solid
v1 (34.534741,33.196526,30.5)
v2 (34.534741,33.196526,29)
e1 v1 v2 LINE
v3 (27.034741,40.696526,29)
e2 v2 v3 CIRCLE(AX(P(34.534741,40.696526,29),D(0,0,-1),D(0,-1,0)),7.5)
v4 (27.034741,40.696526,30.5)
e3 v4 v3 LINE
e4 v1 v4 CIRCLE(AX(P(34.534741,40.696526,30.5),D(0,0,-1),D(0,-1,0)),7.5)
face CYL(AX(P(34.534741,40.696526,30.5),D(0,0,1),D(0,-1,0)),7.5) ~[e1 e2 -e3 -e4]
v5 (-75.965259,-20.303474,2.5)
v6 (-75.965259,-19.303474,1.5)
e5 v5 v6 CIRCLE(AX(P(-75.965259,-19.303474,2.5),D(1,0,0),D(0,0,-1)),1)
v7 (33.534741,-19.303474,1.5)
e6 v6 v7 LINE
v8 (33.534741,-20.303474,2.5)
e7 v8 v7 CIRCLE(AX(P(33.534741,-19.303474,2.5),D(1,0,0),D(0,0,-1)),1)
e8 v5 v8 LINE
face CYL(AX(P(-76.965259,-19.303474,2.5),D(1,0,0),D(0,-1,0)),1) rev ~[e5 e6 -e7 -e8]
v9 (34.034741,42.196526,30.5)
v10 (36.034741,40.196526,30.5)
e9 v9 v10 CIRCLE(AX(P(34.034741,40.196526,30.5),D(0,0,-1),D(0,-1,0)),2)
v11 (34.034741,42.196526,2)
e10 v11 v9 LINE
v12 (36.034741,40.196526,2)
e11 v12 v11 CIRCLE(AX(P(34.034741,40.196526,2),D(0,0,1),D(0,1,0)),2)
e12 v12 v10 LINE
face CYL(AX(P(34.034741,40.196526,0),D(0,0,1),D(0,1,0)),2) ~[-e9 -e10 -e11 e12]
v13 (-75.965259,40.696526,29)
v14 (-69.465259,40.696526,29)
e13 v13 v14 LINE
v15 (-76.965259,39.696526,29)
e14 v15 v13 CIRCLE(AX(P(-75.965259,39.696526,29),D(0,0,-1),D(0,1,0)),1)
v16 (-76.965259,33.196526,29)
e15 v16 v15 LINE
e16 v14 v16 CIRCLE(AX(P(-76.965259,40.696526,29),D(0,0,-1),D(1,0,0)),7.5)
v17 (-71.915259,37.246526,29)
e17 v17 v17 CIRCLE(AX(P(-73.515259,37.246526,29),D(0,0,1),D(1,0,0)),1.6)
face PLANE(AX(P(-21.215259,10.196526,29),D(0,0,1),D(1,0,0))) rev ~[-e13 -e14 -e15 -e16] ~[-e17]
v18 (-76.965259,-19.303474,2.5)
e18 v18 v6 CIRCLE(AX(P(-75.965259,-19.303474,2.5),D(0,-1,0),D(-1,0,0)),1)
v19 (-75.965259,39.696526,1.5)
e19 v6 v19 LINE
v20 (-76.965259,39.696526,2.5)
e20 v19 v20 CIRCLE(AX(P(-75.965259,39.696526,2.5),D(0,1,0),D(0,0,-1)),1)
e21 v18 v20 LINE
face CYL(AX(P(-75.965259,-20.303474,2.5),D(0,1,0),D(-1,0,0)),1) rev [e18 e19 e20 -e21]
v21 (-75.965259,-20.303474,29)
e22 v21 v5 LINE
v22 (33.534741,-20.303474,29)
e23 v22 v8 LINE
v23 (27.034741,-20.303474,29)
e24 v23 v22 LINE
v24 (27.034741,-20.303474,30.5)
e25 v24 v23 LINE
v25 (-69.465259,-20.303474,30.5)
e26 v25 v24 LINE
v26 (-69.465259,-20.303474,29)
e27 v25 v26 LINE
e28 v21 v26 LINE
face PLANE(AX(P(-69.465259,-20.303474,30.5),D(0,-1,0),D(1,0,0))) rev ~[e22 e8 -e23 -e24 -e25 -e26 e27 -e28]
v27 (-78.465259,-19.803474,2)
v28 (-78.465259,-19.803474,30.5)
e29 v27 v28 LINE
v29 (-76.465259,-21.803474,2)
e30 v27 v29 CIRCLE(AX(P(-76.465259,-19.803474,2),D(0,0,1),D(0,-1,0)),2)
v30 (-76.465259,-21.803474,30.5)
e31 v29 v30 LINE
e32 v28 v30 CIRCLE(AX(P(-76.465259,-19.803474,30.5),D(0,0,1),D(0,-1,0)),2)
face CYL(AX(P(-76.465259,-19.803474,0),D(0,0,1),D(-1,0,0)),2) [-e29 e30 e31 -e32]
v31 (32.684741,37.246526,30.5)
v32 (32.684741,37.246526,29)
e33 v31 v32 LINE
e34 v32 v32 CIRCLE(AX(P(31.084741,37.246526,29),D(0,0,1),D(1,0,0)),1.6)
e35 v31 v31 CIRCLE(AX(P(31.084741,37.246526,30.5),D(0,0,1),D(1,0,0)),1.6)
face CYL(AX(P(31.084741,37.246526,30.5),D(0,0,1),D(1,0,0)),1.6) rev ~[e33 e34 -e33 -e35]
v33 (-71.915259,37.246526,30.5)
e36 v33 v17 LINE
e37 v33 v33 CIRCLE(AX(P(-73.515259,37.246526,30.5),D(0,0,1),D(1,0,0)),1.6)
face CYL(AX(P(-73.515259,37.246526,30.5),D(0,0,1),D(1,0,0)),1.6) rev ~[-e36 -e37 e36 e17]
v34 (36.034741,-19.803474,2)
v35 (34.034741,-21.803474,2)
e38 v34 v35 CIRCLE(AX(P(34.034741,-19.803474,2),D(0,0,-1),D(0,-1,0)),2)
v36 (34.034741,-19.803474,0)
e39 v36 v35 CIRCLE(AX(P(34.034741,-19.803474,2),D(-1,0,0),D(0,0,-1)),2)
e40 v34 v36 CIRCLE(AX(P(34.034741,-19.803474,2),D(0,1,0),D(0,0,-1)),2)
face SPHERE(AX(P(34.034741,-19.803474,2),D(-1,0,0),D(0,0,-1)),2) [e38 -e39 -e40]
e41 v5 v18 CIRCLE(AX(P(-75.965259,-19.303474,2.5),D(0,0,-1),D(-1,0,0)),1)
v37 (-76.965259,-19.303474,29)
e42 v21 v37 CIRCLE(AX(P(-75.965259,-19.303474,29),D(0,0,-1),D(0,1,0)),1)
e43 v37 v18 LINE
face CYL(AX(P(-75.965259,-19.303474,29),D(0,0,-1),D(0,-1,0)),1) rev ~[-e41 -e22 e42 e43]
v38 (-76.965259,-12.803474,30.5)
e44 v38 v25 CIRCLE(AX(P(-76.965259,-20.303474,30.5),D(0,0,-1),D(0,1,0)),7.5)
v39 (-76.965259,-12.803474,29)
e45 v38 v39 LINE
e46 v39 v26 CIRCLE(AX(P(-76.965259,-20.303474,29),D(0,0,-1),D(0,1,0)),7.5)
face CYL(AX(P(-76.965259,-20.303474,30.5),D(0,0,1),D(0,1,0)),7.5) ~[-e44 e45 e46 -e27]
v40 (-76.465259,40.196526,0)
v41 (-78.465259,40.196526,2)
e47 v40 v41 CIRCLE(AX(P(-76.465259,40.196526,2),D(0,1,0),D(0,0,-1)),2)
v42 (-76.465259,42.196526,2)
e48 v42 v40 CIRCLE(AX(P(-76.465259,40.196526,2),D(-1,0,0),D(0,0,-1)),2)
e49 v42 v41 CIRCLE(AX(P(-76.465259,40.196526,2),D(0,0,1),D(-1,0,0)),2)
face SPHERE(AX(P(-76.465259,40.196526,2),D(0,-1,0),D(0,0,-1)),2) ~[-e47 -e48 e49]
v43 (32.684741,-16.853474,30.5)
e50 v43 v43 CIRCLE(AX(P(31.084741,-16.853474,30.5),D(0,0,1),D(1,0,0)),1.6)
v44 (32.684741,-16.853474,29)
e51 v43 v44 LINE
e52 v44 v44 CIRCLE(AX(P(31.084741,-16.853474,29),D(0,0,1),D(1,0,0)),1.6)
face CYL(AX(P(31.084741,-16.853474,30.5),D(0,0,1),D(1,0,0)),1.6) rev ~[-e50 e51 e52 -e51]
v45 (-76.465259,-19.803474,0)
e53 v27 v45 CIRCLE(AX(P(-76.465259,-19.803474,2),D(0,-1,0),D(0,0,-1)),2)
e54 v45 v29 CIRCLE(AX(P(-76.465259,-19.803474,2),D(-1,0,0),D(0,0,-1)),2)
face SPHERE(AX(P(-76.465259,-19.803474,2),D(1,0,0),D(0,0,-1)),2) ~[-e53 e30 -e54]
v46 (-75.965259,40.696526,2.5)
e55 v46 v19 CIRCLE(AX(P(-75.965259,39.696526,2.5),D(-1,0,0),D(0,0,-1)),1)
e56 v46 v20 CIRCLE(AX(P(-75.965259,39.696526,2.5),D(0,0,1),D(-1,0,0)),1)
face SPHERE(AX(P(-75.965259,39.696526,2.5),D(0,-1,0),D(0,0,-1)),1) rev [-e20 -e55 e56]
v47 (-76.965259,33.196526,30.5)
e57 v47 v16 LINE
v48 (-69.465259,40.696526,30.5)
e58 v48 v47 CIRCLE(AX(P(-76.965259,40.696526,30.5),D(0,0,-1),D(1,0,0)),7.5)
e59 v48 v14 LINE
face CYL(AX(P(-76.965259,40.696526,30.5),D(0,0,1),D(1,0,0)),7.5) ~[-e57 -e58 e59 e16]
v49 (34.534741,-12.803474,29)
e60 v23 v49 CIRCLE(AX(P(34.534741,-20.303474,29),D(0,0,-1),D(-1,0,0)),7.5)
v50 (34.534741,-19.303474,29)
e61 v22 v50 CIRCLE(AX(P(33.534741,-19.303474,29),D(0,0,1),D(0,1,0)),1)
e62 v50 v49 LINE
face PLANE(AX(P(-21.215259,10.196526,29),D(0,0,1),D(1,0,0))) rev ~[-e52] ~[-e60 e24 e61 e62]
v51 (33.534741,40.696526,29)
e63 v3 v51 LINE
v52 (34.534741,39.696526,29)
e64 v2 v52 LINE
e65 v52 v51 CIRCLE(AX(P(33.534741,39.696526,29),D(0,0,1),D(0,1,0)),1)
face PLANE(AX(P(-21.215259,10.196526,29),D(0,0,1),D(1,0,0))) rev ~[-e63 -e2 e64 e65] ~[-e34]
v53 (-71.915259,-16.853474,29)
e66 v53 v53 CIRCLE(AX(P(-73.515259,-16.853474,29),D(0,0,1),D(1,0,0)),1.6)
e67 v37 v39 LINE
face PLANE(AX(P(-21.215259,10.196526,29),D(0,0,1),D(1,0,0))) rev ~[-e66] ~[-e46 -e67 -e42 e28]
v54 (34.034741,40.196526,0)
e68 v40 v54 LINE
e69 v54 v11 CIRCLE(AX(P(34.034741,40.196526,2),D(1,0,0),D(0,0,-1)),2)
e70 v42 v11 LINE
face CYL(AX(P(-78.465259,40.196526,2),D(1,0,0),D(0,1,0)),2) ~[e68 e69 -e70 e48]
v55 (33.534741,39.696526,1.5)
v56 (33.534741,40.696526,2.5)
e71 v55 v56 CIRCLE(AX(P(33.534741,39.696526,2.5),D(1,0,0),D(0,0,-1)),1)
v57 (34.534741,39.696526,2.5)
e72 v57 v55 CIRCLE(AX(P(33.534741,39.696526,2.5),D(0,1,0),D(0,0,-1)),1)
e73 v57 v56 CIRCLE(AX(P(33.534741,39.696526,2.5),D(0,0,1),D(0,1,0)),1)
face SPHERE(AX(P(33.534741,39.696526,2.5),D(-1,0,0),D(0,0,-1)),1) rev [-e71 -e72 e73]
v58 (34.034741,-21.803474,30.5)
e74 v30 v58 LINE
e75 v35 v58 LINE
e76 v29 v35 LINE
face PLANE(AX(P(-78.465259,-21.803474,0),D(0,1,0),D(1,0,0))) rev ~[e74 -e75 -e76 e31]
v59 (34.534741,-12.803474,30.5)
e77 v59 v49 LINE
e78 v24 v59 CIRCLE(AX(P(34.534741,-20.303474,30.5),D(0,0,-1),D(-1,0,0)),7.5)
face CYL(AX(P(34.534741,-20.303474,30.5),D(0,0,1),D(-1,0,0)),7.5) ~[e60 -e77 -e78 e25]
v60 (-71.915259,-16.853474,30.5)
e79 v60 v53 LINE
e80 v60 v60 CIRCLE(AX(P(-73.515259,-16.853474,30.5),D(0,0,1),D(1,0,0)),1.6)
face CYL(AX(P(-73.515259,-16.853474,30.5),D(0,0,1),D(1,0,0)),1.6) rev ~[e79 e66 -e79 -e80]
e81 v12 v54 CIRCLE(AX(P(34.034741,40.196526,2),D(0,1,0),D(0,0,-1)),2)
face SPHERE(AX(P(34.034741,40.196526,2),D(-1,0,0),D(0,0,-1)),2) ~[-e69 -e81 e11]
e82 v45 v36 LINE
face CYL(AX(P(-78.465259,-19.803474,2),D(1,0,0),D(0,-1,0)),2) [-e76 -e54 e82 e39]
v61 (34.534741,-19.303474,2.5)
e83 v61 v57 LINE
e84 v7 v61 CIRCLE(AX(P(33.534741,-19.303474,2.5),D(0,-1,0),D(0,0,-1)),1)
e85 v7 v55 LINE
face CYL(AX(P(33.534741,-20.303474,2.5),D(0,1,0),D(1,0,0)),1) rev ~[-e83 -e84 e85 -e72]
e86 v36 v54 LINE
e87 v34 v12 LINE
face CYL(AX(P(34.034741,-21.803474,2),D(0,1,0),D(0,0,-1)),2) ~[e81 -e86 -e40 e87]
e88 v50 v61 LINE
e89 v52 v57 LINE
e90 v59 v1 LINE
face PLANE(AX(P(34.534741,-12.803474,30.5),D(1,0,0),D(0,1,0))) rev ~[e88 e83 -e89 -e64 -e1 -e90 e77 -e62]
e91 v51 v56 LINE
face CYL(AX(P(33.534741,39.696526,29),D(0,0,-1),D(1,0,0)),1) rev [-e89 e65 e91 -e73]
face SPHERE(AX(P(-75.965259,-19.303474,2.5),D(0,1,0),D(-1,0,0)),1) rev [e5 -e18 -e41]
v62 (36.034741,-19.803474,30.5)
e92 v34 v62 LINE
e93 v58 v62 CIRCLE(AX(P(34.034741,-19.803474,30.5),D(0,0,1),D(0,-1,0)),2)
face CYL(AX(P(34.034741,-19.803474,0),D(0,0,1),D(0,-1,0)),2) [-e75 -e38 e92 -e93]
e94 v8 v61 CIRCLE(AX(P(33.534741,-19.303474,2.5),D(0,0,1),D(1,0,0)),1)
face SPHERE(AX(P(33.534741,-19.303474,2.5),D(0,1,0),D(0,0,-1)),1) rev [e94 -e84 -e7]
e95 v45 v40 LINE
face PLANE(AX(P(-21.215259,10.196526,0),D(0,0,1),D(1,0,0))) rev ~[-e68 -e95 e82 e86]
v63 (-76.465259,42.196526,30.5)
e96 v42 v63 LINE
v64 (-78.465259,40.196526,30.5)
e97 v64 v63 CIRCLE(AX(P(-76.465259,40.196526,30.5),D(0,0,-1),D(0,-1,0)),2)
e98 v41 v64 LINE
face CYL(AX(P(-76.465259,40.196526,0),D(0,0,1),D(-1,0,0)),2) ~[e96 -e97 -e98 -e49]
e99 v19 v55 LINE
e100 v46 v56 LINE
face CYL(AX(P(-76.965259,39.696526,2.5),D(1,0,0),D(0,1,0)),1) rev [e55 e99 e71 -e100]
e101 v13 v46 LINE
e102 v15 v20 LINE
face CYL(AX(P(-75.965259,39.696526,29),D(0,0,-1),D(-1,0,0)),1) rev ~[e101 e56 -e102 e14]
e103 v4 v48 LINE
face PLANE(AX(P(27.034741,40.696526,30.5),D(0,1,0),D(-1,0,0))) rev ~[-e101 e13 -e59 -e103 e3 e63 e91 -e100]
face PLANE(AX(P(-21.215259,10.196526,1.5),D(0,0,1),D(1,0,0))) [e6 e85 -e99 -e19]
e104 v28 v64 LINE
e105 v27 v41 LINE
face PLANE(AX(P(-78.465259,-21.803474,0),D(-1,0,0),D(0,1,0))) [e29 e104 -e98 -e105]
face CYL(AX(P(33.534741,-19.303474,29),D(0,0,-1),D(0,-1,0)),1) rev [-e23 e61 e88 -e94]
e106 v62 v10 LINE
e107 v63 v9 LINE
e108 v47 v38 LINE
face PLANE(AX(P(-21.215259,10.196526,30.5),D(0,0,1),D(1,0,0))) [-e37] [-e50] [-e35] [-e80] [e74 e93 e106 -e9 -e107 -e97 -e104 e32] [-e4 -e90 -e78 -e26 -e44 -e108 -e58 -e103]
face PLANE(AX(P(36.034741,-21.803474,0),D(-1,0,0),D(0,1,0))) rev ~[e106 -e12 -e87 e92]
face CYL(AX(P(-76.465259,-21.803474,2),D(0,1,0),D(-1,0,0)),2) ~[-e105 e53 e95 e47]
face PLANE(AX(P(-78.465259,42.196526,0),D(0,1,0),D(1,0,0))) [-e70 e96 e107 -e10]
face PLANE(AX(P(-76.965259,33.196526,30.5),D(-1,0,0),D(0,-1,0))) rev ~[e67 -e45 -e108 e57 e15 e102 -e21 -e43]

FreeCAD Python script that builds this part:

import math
import FreeCAD as App
import Part
import Sketcher
from FreeCAD import Vector
Q = App.Units.Quantity


def edges_at(feature, points):
    """Names of the edges that pass closest to the given points."""
    edges = feature.Shape.Edges
    near = lambda p: min(range(len(edges)), key=lambda i: edges[i].distToShape(Part.Vertex(*p))[0])
    return sorted({f"Edge{near(p) + 1}" for p in points})


def add_polygon(sketch, points):
    """Adds a closed chain of lines whose ends are joined by coincident constraints."""
    first, n = sketch.GeometryCount, len(points)
    for a, b in zip(points, points[1:] + points[:1]):
        sketch.addGeometry(Part.LineSegment(App.Vector(*a, 0), App.Vector(*b, 0)), False)
    for i in range(n):
        sketch.addConstraint(Sketcher.Constraint("Coincident", first + i, 2, first + (i + 1) % n, 1))

doc = App.newDocument("Part")
body = doc.addObject("PartDesign::Body", "Body")

sketch1 = body.newObject("Sketcher::SketchObject", "Sketch")
sketch1.AttachmentSupport = (doc.getObject("XY_Plane"), [""])
sketch1.MapMode = "FlatFace"
add_polygon(sketch1, [(-78, 42), (-78, -22), (36, -22), (36, 42)])
sketch1.addConstraint([
    Sketcher.Constraint("Vertical", 0),
    Sketcher.Constraint("Horizontal", 1),
    Sketcher.Constraint("Vertical", 2),
    Sketcher.Constraint("Horizontal", 3),
    Sketcher.Constraint("DistanceY", 0, 2, 0, 1, Q("64 mm")),
    Sketcher.Constraint("DistanceX", 1, 1, 1, 2, Q("114.5 mm")),
    Sketcher.Constraint("DistanceX", 0, 2, -1, 1, Q("78.465259 mm")),
    Sketcher.Constraint("DistanceY", 0, 2, -1, 1, Q("21.803474 mm")),
])
pad1 = body.newObject("PartDesign::Pad", "Pad")
pad1.Profile = sketch1
pad1.Length = 30.5

sketch2 = body.newObject("Sketcher::SketchObject", "Sketch001")
sketch2.AttachmentSupport = (doc.getObject("XY_Plane"), [""])
sketch2.MapMode = "FlatFace"
sketch2.AttachmentOffset = App.Placement(Vector(0, 0, 30.5), App.Rotation())
sketch2.addGeometry([
    Part.ArcOfCircle(Part.Circle(Vector(35, -20, 0), Vector(0, 0, 1), 8), math.radians(90), math.radians(180)),
    Part.LineSegment(Vector(35, -13, 0), Vector(35, 33, 0)),
    Part.ArcOfCircle(Part.Circle(Vector(35, 41, 0), Vector(0, 0, 1), 8), math.radians(-180), math.radians(-90)),
    Part.LineSegment(Vector(27, 41, 0), Vector(-69, 41, 0)),
    Part.ArcOfCircle(Part.Circle(Vector(-77, 41, 0), Vector(0, 0, 1), 8), math.radians(-90), math.radians(0)),
    Part.LineSegment(Vector(-77, 33, 0), Vector(-77, -13, 0)),
    Part.ArcOfCircle(Part.Circle(Vector(-77, -20, 0), Vector(0, 0, 1), 8), math.radians(0), math.radians(90)),
    Part.LineSegment(Vector(-69, -20, 0), Vector(27, -20, 0)),
], False)
sketch2.addConstraint([
    Sketcher.Constraint("Coincident", 0, 1, 1, 1),
    Sketcher.Constraint("Coincident", 1, 2, 2, 2),
    Sketcher.Constraint("Coincident", 2, 1, 3, 1),
    Sketcher.Constraint("Coincident", 3, 2, 4, 2),
    Sketcher.Constraint("Coincident", 4, 1, 5, 1),
    Sketcher.Constraint("Coincident", 5, 2, 6, 2),
    Sketcher.Constraint("Coincident", 6, 1, 7, 1),
    Sketcher.Constraint("Coincident", 7, 2, 0, 2),
    Sketcher.Constraint("Vertical", 1),
    Sketcher.Constraint("Horizontal", 3),
    Sketcher.Constraint("Vertical", 5),
    Sketcher.Constraint("Horizontal", 7),
    Sketcher.Constraint("Equal", 0, 2),
    Sketcher.Constraint("Equal", 2, 4),
    Sketcher.Constraint("Equal", 4, 6),
    Sketcher.Constraint("Horizontal", 2, 3, 4, 3),
    Sketcher.Constraint("Horizontal", 0, 3, 6, 3),
    Sketcher.Constraint("Horizontal", 4, 3, 2, 1),
    Sketcher.Constraint("Horizontal", 0, 3, 6, 1),
    Sketcher.Constraint("Vertical", 0, 3, 2, 3),
    Sketcher.Constraint("Vertical", 4, 3, 6, 3),
    Sketcher.Constraint("Vertical", 2, 3, 0, 1),
    Sketcher.Constraint("Vertical", 6, 3, 4, 1),
    Sketcher.Constraint("Radius", 0, Q("7.5 mm")),
    Sketcher.Constraint("DistanceY", 1, 1, 1, 2, Q("46 mm")),
    Sketcher.Constraint("DistanceX", 3, 2, 3, 1, Q("96.5 mm")),
    Sketcher.Constraint("DistanceX", -1, 1, 0, 3, Q("34.534741 mm")),
    Sketcher.Constraint("DistanceY", 0, 3, -1, 1, Q("20.303474 mm")),
])
pocket1 = body.newObject("PartDesign::Pocket", "Pocket")
pocket1.Profile = sketch2
pocket1.Length = 1.5

sketch3 = body.newObject("Sketcher::SketchObject", "Sketch002")
sketch3.AttachmentSupport = (doc.getObject("XY_Plane"), [""])
sketch3.MapMode = "FlatFace"
sketch3.AttachmentOffset = App.Placement(Vector(0, 0, 29), App.Rotation())
add_polygon(sketch3, [(-77, 41), (-77, -20), (35, -20), (35, 41)])
sketch3.addConstraint([
    Sketcher.Constraint("Vertical", 0),
    Sketcher.Constraint("Horizontal", 1),
    Sketcher.Constraint("Vertical", 2),
    Sketcher.Constraint("Horizontal", 3),
    Sketcher.Constraint("DistanceY", 0, 2, 0, 1, Q("61 mm")),
    Sketcher.Constraint("DistanceX", 1, 1, 1, 2, Q("111.5 mm")),
    Sketcher.Constraint("DistanceX", 0, 2, -1, 1, Q("76.965259 mm")),
    Sketcher.Constraint("DistanceY", 0, 2, -1, 1, Q("20.303474 mm")),
])
pocket2 = body.newObject("PartDesign::Pocket", "Pocket001")
pocket2.Profile = sketch3
pocket2.Length = 27.5

sketch4 = body.newObject("Sketcher::SketchObject", "Sketch003")
sketch4.AttachmentSupport = (doc.getObject("XY_Plane"), [""])
sketch4.MapMode = "FlatFace"
sketch4.AttachmentOffset = App.Placement(Vector(0, 0, 30.5), App.Rotation())
sketch4.addGeometry(Part.Circle(Vector(-73.5, 37.2, 0), Vector(0, 0, 1), 1.6), False)
sketch4.addConstraint([
    Sketcher.Constraint("Diameter", 0, Q("3.2 mm")),
    Sketcher.Constraint("DistanceX", 0, 3, -1, 1, Q("73.515259 mm")),
    Sketcher.Constraint("DistanceY", -1, 1, 0, 3, Q("37.246526 mm")),
])
pocket3 = body.newObject("PartDesign::Pocket", "Pocket002")
pocket3.Profile = sketch4
pocket3.Type = "UpToFirst"

sketch5 = body.newObject("Sketcher::SketchObject", "Sketch004")
sketch5.AttachmentSupport = (doc.getObject("XY_Plane"), [""])
sketch5.MapMode = "FlatFace"
sketch5.AttachmentOffset = App.Placement(Vector(0, 0, 30.5), App.Rotation())
sketch5.addGeometry(Part.Circle(Vector(31.1, -16.9, 0), Vector(0, 0, 1), 1.6), False)
sketch5.addConstraint([
    Sketcher.Constraint("Diameter", 0, Q("3.2 mm")),
    Sketcher.Constraint("DistanceX", -1, 1, 0, 3, Q("31.084741 mm")),
    Sketcher.Constraint("DistanceY", 0, 3, -1, 1, Q("16.853474 mm")),
])
pocket4 = body.newObject("PartDesign::Pocket", "Pocket003")
pocket4.Profile = sketch5
pocket4.Type = "UpToFirst"

sketch6 = body.newObject("Sketcher::SketchObject", "Sketch005")
sketch6.AttachmentSupport = (doc.getObject("XY_Plane"), [""])
sketch6.MapMode = "FlatFace"
sketch6.AttachmentOffset = App.Placement(Vector(0, 0, 30.5), App.Rotation())
sketch6.addGeometry(Part.Circle(Vector(-73.5, -16.9, 0), Vector(0, 0, 1), 1.6), False)
sketch6.addConstraint([
    Sketcher.Constraint("Diameter", 0, Q("3.2 mm")),
    Sketcher.Constraint("DistanceX", 0, 3, -1, 1, Q("73.515259 mm")),
    Sketcher.Constraint("DistanceY", 0, 3, -1, 1, Q("16.853474 mm")),
])
pocket5 = body.newObject("PartDesign::Pocket", "Pocket004")
pocket5.Profile = sketch6
pocket5.Type = "UpToFirst"

sketch7 = body.newObject("Sketcher::SketchObject", "Sketch006")
sketch7.AttachmentSupport = (doc.getObject("XY_Plane"), [""])
sketch7.MapMode = "FlatFace"
sketch7.AttachmentOffset = App.Placement(Vector(0, 0, 30.5), App.Rotation())
sketch7.addGeometry(Part.Circle(Vector(31.1, 37.2, 0), Vector(0, 0, 1), 1.6), False)
sketch7.addConstraint([
    Sketcher.Constraint("Diameter", 0, Q("3.2 mm")),
    Sketcher.Constraint("DistanceX", -1, 1, 0, 3, Q("31.084741 mm")),
    Sketcher.Constraint("DistanceY", -1, 1, 0, 3, Q("37.246526 mm")),
])
pocket6 = body.newObject("PartDesign::Pocket", "Pocket005")
pocket6.Profile = sketch7
pocket6.Type = "UpToFirst"
doc.recompute()

fillet = body.newObject("PartDesign::Fillet", "Fillet")
fillet.Base = (pocket6, edges_at(pocket6, [
    (-21.215, -21.803, 0),
    (-78.465, 10.197, 0),
    (-21.215, 42.197, 0),
    (36.035, 10.197, 0),
    (36.035, -21.803, 15.25),
    (-78.465, -21.803, 15.25),
    (-78.465, 42.197, 15.25),
    (36.035, 42.197, 15.25),
]))
fillet.Radius = 2
doc.recompute()

fillet2 = body.newObject("PartDesign::Fillet", "Fillet001")
fillet2.Base = (fillet, edges_at(fillet, [
    (-76.965, 10.197, 1.5),
    (-76.965, -20.303, 15.25),
    (-21.215, 40.697, 1.5),
    (-76.965, 40.697, 15.25),
    (34.535, 10.197, 1.5),
    (34.535, 40.697, 15.25),
    (-21.215, -20.303, 1.5),
    (34.535, -20.303, 15.25),
]))
fillet2.Radius = 1

doc.recompute()
